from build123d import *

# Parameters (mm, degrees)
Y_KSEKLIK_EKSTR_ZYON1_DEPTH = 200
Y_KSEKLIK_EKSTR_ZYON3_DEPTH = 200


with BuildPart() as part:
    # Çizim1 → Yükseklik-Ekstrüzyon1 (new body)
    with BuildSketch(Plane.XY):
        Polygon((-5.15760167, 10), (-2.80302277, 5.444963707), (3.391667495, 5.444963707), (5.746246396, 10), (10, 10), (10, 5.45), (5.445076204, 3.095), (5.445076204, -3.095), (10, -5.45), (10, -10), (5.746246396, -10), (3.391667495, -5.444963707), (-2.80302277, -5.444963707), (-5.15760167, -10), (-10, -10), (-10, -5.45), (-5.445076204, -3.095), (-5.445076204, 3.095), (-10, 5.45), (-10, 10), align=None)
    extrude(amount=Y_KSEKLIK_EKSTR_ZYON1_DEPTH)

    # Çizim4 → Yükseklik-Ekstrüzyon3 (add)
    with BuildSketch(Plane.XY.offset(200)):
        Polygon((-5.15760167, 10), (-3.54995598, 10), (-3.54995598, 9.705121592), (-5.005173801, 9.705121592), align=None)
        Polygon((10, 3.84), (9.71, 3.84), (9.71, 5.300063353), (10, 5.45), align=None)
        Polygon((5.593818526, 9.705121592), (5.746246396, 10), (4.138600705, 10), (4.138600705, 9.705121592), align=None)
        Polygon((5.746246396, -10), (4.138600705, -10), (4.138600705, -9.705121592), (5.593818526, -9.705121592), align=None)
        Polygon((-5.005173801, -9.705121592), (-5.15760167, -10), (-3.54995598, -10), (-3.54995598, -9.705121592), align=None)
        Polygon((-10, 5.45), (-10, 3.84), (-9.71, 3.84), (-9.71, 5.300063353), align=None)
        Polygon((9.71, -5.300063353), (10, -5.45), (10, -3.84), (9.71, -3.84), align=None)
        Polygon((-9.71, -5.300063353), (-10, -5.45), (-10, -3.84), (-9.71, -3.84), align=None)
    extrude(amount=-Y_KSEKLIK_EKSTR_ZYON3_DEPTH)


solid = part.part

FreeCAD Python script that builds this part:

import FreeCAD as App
import Part
import Sketcher
Q = App.Units.Quantity

doc = App.newDocument("Part")
params = doc.addObject("Spreadsheet::Sheet", "Params")
for row, (alias, value) in enumerate([
    ("sketch1_height", "4.55 mm"),
    ("sketch1_height2", "6.19 mm"),
    ("pad1_length", "200 mm"),
    ("sketch2_width", "0.29 mm"),
    ("sketch2_height", "1.61 mm"),
    ("pad2_length", "200 mm"),
], start=1):
    params.set(f"A{row}", alias)
    params.set(f"B{row}", "=" + value)
    params.setAlias(f"B{row}", alias)

body = doc.addObject("PartDesign::Body", "Body")

# Sketch on XY plane
sketch1 = body.newObject("Sketcher::SketchObject", "Sketch")
sketch1.AttachmentSupport = (doc.getObject("XY_Plane"), [""])
sketch1.MapMode = "FlatFace"
sketch1.addGeometry([
    Part.LineSegment(App.Vector(-2.8, 5.4, 0), App.Vector(-5.2, 10, 0)),  # 0
    Part.LineSegment(App.Vector(-5.2, 10, 0), App.Vector(-10, 10, 0)),  # 1
    Part.LineSegment(App.Vector(-10, 10, 0), App.Vector(-10, 5.5, 0)),  # 2
    Part.LineSegment(App.Vector(-10, 5.5, 0), App.Vector(-5.4, 3.1, 0)),  # 3
    Part.LineSegment(App.Vector(-5.4, 3.1, 0), App.Vector(-5.4, -3.1, 0)),  # 4
    Part.LineSegment(App.Vector(-5.4, -3.1, 0), App.Vector(-10, -5.5, 0)),  # 5
    Part.LineSegment(App.Vector(-10, -5.5, 0), App.Vector(-10, -10, 0)),  # 6
    Part.LineSegment(App.Vector(-10, -10, 0), App.Vector(-5.2, -10, 0)),  # 7
    Part.LineSegment(App.Vector(-5.2, -10, 0), App.Vector(-2.8, -5.4, 0)),  # 8
    Part.LineSegment(App.Vector(-2.8, -5.4, 0), App.Vector(3.4, -5.4, 0)),  # 9
    Part.LineSegment(App.Vector(3.4, -5.4, 0), App.Vector(5.7, -10, 0)),  # 10
    Part.LineSegment(App.Vector(5.7, -10, 0), App.Vector(10, -10, 0)),  # 11
    Part.LineSegment(App.Vector(10, -10, 0), App.Vector(10, -5.5, 0)),  # 12
    Part.LineSegment(App.Vector(10, -5.5, 0), App.Vector(5.4, -3.1, 0)),  # 13
    Part.LineSegment(App.Vector(5.4, -3.1, 0), App.Vector(5.4, 3.1, 0)),  # 14
    Part.LineSegment(App.Vector(5.4, 3.1, 0), App.Vector(10, 5.5, 0)),  # 15
    Part.LineSegment(App.Vector(10, 5.5, 0), App.Vector(10, 10, 0)),  # 16
    Part.LineSegment(App.Vector(10, 10, 0), App.Vector(5.7, 10, 0)),  # 17
    Part.LineSegment(App.Vector(5.7, 10, 0), App.Vector(3.4, 5.4, 0)),  # 18
    Part.LineSegment(App.Vector(3.4, 5.4, 0), App.Vector(-2.8, 5.4, 0)),  # 19
], False)
sketch1.addConstraint([
    Sketcher.Constraint("Coincident", 0, 2, 1, 1),
    Sketcher.Constraint("Coincident", 1, 2, 2, 1),
    Sketcher.Constraint("Coincident", 2, 2, 3, 1),
    Sketcher.Constraint("Coincident", 3, 2, 4, 1),
    Sketcher.Constraint("Coincident", 4, 2, 5, 1),
    Sketcher.Constraint("Coincident", 5, 2, 6, 1),
    Sketcher.Constraint("Coincident", 6, 2, 7, 1),
    Sketcher.Constraint("Coincident", 7, 2, 8, 1),
    Sketcher.Constraint("Coincident", 8, 2, 9, 1),
    Sketcher.Constraint("Coincident", 9, 2, 10, 1),
    Sketcher.Constraint("Coincident", 10, 2, 11, 1),
    Sketcher.Constraint("Coincident", 11, 2, 12, 1),
    Sketcher.Constraint("Coincident", 12, 2, 13, 1),
    Sketcher.Constraint("Coincident", 13, 2, 14, 1),
    Sketcher.Constraint("Coincident", 14, 2, 15, 1),
    Sketcher.Constraint("Coincident", 15, 2, 16, 1),
    Sketcher.Constraint("Coincident", 16, 2, 17, 1),
    Sketcher.Constraint("Coincident", 17, 2, 18, 1),
    Sketcher.Constraint("Coincident", 18, 2, 19, 1),
    Sketcher.Constraint("Coincident", 19, 2, 0, 1),
    Sketcher.Constraint("Horizontal", 1),
    Sketcher.Constraint("Vertical", 2),
    Sketcher.Constraint("Vertical", 4),
    Sketcher.Constraint("Vertical", 6),
    Sketcher.Constraint("Horizontal", 7),
    Sketcher.Constraint("Horizontal", 9),
    Sketcher.Constraint("Horizontal", 11),
    Sketcher.Constraint("Vertical", 12),
    Sketcher.Constraint("Vertical", 14),
    Sketcher.Constraint("Vertical", 16),
    Sketcher.Constraint("Horizontal", 17),
    Sketcher.Constraint("Horizontal", 19),
    Sketcher.Constraint("Symmetric", 1, 2, 11, 2, -1, 1),
    Sketcher.Constraint("Symmetric", 3, 2, 13, 2, -1, 1),
    Sketcher.Constraint("Symmetric", 5, 2, 15, 2, -1, 1),
    Sketcher.Constraint("Symmetric", 6, 2, 11, 2, -2),
    Sketcher.Constraint("Symmetric", 10, 2, 17, 2, -1),
    Sketcher.Constraint("Symmetric", 9, 2, 18, 2, -1),
    Sketcher.Constraint("Parallel", 0, 10),
    Sketcher.Constraint("Parallel", 3, 13),
    Sketcher.Constraint("Parallel", 5, 15),
    Sketcher.Constraint("Parallel", 8, 18),
    Sketcher.Constraint("Horizontal", 5, 2, 12, 2),
    Sketcher.Constraint("Horizontal", 4, 2, 13, 2),
    Sketcher.Constraint("Vertical", 0, 2, 7, 2),
    Sketcher.Constraint("DistanceY", -1, 1, 0, 2, 10.0),
    Sketcher.Constraint("DistanceX", 1, 2, -1, 1, 10.0),
    Sketcher.Constraint("DistanceY", 2, 2, 2, 1, 4.55),
    Sketcher.Constraint("DistanceY", 4, 2, 4, 1, 6.19),
    Sketcher.Constraint("Angle", 3, Q("-27.34 deg")),
    Sketcher.Constraint("DistanceX", 1, 2, 1, 1, 4.842398),
    Sketcher.Constraint("DistanceX", 9, 1, 9, 2, 6.19469),
    Sketcher.Constraint("DistanceX", 8, 2, 13, 2, 8.248099),
    Sketcher.Constraint("Distance", 0, 5.127611),
])
sketch1.setExpression("Constraints[47]", "Params.sketch1_height")
sketch1.setExpression("Constraints[48]", "Params.sketch1_height2")
pad1 = body.newObject("PartDesign::Pad", "Pad")
pad1.Profile = sketch1
pad1.setExpression("Length", "Params.pad1_length")

# Sketch on XY plane
sketch2 = body.newObject("Sketcher::SketchObject", "Sketch001")
sketch2.AttachmentSupport = (doc.getObject("XY_Plane"), [""])
sketch2.MapMode = "FlatFace"
sketch2.AttachmentOffset = App.Placement(App.Vector(0, 0, 200), App.Rotation())
sketch2.addGeometry([
    Part.LineSegment(App.Vector(-3.55, 10, 0), App.Vector(-5.16, 10, 0)),  # 0
    Part.LineSegment(App.Vector(-5.16, 10, 0), App.Vector(-5.01, 9.71, 0)),  # 1
    Part.LineSegment(App.Vector(-5.01, 9.71, 0), App.Vector(-3.55, 9.71, 0)),  # 2
    Part.LineSegment(App.Vector(-3.55, 9.71, 0), App.Vector(-3.55, 10, 0)),  # 3
    Part.LineSegment(App.Vector(9.71, 3.84, 0), App.Vector(10, 3.84, 0)),  # 4
    Part.LineSegment(App.Vector(10, 3.84, 0), App.Vector(10, 5.45, 0)),  # 5
    Part.LineSegment(App.Vector(10, 5.45, 0), App.Vector(9.71, 5.3, 0)),  # 6
    Part.LineSegment(App.Vector(9.71, 5.3, 0), App.Vector(9.71, 3.84, 0)),  # 7
    Part.LineSegment(App.Vector(5.59, 9.71, 0), App.Vector(5.75, 10, 0)),  # 8
    Part.LineSegment(App.Vector(5.75, 10, 0), App.Vector(4.14, 10, 0)),  # 9
    Part.LineSegment(App.Vector(4.14, 10, 0), App.Vector(4.14, 9.71, 0)),  # 10
    Part.LineSegment(App.Vector(4.14, 9.71, 0), App.Vector(5.59, 9.71, 0)),  # 11
    Part.LineSegment(App.Vector(4.14, -10, 0), App.Vector(5.75, -10, 0)),  # 12
    Part.LineSegment(App.Vector(5.75, -10, 0), App.Vector(5.59, -9.71, 0)),  # 13
    Part.LineSegment(App.Vector(5.59, -9.71, 0), App.Vector(4.14, -9.71, 0)),  # 14
    Part.LineSegment(App.Vector(4.14, -9.71, 0), App.Vector(4.14, -10, 0)),  # 15
    Part.LineSegment(App.Vector(-5.01, -9.71, 0), App.Vector(-5.16, -10, 0)),  # 16
    Part.LineSegment(App.Vector(-5.16, -10, 0), App.Vector(-3.55, -10, 0)),  # 17
    Part.LineSegment(App.Vector(-3.55, -10, 0), App.Vector(-3.55, -9.71, 0)),  # 18
    Part.LineSegment(App.Vector(-3.55, -9.71, 0), App.Vector(-5.01, -9.71, 0)),  # 19
    Part.LineSegment(App.Vector(-10, 5.45, 0), App.Vector(-10, 3.84, 0)),  # 20
    Part.LineSegment(App.Vector(-10, 3.84, 0), App.Vector(-9.71, 3.84, 0)),  # 21
    Part.LineSegment(App.Vector(-9.71, 3.84, 0), App.Vector(-9.71, 5.3, 0)),  # 22
    Part.LineSegment(App.Vector(-9.71, 5.3, 0), App.Vector(-10, 5.45, 0)),  # 23
    Part.LineSegment(App.Vector(9.71, -5.3, 0), App.Vector(10, -5.45, 0)),  # 24
    Part.LineSegment(App.Vector(10, -5.45, 0), App.Vector(10, -3.84, 0)),  # 25
    Part.LineSegment(App.Vector(10, -3.84, 0), App.Vector(9.71, -3.84, 0)),  # 26
    Part.LineSegment(App.Vector(9.71, -3.84, 0), App.Vector(9.71, -5.3, 0)),  # 27
    Part.LineSegment(App.Vector(-10, -5.45, 0), App.Vector(-9.71, -5.3, 0)),  # 28
    Part.LineSegment(App.Vector(-9.71, -5.3, 0), App.Vector(-9.71, -3.84, 0)),  # 29
    Part.LineSegment(App.Vector(-9.71, -3.84, 0), App.Vector(-10, -3.84, 0)),  # 30
    Part.LineSegment(App.Vector(-10, -3.84, 0), App.Vector(-10, -5.45, 0)),  # 31
], False)
sketch2.addConstraint([
    Sketcher.Constraint("Coincident", 0, 2, 1, 1),
    Sketcher.Constraint("Coincident", 1, 2, 2, 1),
    Sketcher.Constraint("Coincident", 2, 2, 3, 1),
    Sketcher.Constraint("Coincident", 3, 2, 0, 1),
    Sketcher.Constraint("Coincident", 4, 2, 5, 1),
    Sketcher.Constraint("Coincident", 5, 2, 6, 1),
    Sketcher.Constraint("Coincident", 6, 2, 7, 1),
    Sketcher.Constraint("Coincident", 7, 2, 4, 1),
    Sketcher.Constraint("Coincident", 8, 2, 9, 1),
    Sketcher.Constraint("Coincident", 9, 2, 10, 1),
    Sketcher.Constraint("Coincident", 10, 2, 11, 1),
    Sketcher.Constraint("Coincident", 11, 2, 8, 1),
    Sketcher.Constraint("Coincident", 12, 2, 13, 1),
    Sketcher.Constraint("Coincident", 13, 2, 14, 1),
    Sketcher.Constraint("Coincident", 14, 2, 15, 1),
    Sketcher.Constraint("Coincident", 15, 2, 12, 1),
    Sketcher.Constraint("Coincident", 16, 2, 17, 1),
    Sketcher.Constraint("Coincident", 17, 2, 18, 1),
    Sketcher.Constraint("Coincident", 18, 2, 19, 1),
    Sketcher.Constraint("Coincident", 19, 2, 16, 1),
    Sketcher.Constraint("Coincident", 20, 2, 21, 1),
    Sketcher.Constraint("Coincident", 21, 2, 22, 1),
    Sketcher.Constraint("Coincident", 22, 2, 23, 1),
    Sketcher.Constraint("Coincident", 23, 2, 20, 1),
    Sketcher.Constraint("Coincident", 24, 2, 25, 1),
    Sketcher.Constraint("Coincident", 25, 2, 26, 1),
    Sketcher.Constraint("Coincident", 26, 2, 27, 1),
    Sketcher.Constraint("Coincident", 27, 2, 24, 1),
    Sketcher.Constraint("Coincident", 28, 2, 29, 1),
    Sketcher.Constraint("Coincident", 29, 2, 30, 1),
    Sketcher.Constraint("Coincident", 30, 2, 31, 1),
    Sketcher.Constraint("Coincident", 31, 2, 28, 1),
    Sketcher.Constraint("Horizontal", 0),
    Sketcher.Constraint("Horizontal", 2),
    Sketcher.Constraint("Vertical", 3),
    Sketcher.Constraint("Horizontal", 4),
    Sketcher.Constraint("Vertical", 5),
    Sketcher.Constraint("Vertical", 7),
    Sketcher.Constraint("Horizontal", 9),
    Sketcher.Constraint("Vertical", 10),
    Sketcher.Constraint("Horizontal", 11),
    Sketcher.Constraint("Horizontal", 12),
    Sketcher.Constraint("Horizontal", 14),
    Sketcher.Constraint("Vertical", 15),
    Sketcher.Constraint("Horizontal", 17),
    Sketcher.Constraint("Vertical", 18),
    Sketcher.Constraint("Horizontal", 19),
    Sketcher.Constraint("Vertical", 20),
    Sketcher.Constraint("Horizontal", 21),
    Sketcher.Constraint("Vertical", 22),
    Sketcher.Constraint("Vertical", 25),
    Sketcher.Constraint("Horizontal", 26),
    Sketcher.Constraint("Vertical", 27),
    Sketcher.Constraint("Vertical", 29),
    Sketcher.Constraint("Horizontal", 30),
    Sketcher.Constraint("Vertical", 31),
    Sketcher.Constraint("Symmetric", 23, 2, 24, 2, -1, 1),
    Sketcher.Constraint("Symmetric", 21, 2, 26, 2, -1, 1),
    Sketcher.Constraint("Symmetric", 6, 2, 28, 2, -1, 1),
    Sketcher.Constraint("Symmetric", 4, 2, 30, 2, -1, 1),
    Sketcher.Constraint("Symmetric", 4, 2, 20, 2, -2),
    Sketcher.Constraint("Symmetric", 6, 2, 22, 2, -2),
    Sketcher.Constraint("Symmetric", 8, 2, 12, 2, -1),
    Sketcher.Constraint("Symmetric", 11, 2, 13, 2, -1),
    Sketcher.Constraint("Symmetric", 0, 2, 16, 2, -1),
    Sketcher.Constraint("Symmetric", 2, 2, 18, 2, -1),
    Sketcher.Constraint("Parallel", 1, 13),
    Sketcher.Constraint("Parallel", 8, 16),
    Sketcher.Constraint("Parallel", 23, 24),
    Sketcher.Constraint("Parallel", 6, 28),
    Sketcher.Constraint("Horizontal", 3, 2, 8, 2),
    Sketcher.Constraint("Horizontal", 2, 2, 10, 2),
    Sketcher.Constraint("Horizontal", 5, 2, 23, 2),
    Sketcher.Constraint("Vertical", 10, 2, 14, 2),
    Sketcher.Constraint("Equal", 0, 9),
    Sketcher.Constraint("DistanceY", -1, 1, 0, 2, 10.0),
    Sketcher.Constraint("DistanceX", -1, 1, 4, 2, 10.0),
    Sketcher.Constraint("DistanceX", 4, 1, 4, 2, 0.29),
    Sketcher.Constraint("DistanceY", 5, 1, 5, 2, 1.61),
    Sketcher.Constraint("Angle", 6, Q("-152.66 deg")),
    Sketcher.Constraint("DistanceY", -1, 1, 4, 2, 3.84),
    Sketcher.Constraint("DistanceY", 3, 1, 3, 2, 0.294878),
    Sketcher.Constraint("DistanceX", 0, 2, -1, 1, 5.157602),
    Sketcher.Constraint("DistanceX", -1, 1, 9, 2, 4.138601),
    Sketcher.Constraint("DistanceX", 0, 2, 0, 1, 1.607646),
    Sketcher.Constraint("DistanceX", 2, 1, 2, 2, 1.455218),
])
sketch2.setExpression("Constraints[77]", "Params.sketch2_width")
sketch2.setExpression("Constraints[78]", "Params.sketch2_height")
pad2 = body.newObject("PartDesign::Pad", "Pad001")
pad2.Profile = sketch2
pad2.setExpression("Length", "Params.pad2_length")
pad2.Reversed = True

doc.recompute()
